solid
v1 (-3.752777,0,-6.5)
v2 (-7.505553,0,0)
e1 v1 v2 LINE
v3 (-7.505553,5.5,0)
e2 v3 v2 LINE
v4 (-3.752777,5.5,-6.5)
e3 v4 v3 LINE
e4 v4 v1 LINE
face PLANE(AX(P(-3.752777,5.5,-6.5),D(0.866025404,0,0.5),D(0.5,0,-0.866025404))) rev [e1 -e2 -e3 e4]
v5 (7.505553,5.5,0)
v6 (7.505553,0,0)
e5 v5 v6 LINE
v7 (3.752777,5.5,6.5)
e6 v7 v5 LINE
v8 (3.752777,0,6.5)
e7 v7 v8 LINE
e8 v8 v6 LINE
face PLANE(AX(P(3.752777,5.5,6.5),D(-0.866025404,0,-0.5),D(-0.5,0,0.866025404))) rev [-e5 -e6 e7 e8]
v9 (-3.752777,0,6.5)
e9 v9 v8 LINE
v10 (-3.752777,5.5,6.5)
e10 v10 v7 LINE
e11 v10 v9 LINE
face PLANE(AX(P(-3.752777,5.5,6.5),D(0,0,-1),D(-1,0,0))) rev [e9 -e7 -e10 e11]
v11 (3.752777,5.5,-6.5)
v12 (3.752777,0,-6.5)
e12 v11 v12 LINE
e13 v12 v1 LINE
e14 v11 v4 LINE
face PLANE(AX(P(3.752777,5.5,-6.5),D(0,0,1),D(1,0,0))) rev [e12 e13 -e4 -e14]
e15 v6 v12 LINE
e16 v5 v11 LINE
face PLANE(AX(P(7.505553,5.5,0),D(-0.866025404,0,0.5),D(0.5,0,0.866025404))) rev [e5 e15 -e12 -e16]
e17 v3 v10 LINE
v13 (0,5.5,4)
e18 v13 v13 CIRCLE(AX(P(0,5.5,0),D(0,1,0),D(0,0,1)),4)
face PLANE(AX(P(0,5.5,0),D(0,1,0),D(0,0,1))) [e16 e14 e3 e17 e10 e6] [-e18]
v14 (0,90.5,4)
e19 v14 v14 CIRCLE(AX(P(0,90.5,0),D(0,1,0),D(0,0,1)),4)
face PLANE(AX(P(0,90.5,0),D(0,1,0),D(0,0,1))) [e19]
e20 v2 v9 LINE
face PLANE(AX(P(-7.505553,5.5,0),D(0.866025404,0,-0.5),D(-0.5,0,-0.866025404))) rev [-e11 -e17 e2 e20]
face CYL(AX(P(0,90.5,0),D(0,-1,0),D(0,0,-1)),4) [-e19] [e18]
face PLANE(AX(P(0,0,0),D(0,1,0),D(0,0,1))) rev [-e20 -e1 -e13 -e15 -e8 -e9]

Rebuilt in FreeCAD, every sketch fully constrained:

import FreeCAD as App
import Part
import Sketcher
from FreeCAD import Vector
Q = App.Units.Quantity


def add_polygon(sketch, points):
    """Adds a closed chain of lines whose ends are joined by coincident constraints."""
    first, n = sketch.GeometryCount, len(points)
    for a, b in zip(points, points[1:] + points[:1]):
        sketch.addGeometry(Part.LineSegment(App.Vector(*a, 0), App.Vector(*b, 0)), False)
    for i in range(n):
        sketch.addConstraint(Sketcher.Constraint("Coincident", first + i, 2, first + (i + 1) % n, 1))

doc = App.newDocument("Part")
body = doc.addObject("PartDesign::Body", "Body")

sketch1 = doc.addObject("Sketcher::SketchObject", "Sketch")
body.addObject(sketch1)
sketch1.AttachmentSupport = (doc.XZ_Plane, [""])
sketch1.MapMode = "FlatFace"
add_polygon(sketch1, [(-7.505553, 0), (-3.752777, 6.5), (3.752777, 6.5), (7.505553, 0), (3.752777, -6.5), (-3.752777, -6.5)])
sketch1.addConstraint(Sketcher.Constraint("Horizontal", 1))
sketch1.addConstraint(Sketcher.Constraint("Horizontal", 4))
sketch1.addConstraint(Sketcher.Constraint("Symmetric", 0, 2, 3, 2, -1, 1))
sketch1.addConstraint(Sketcher.Constraint("Symmetric", 2, 2, 5, 2, -1, 1))
sketch1.addConstraint(Sketcher.Constraint("PointOnObject", 2, 2, -1))
sketch1.addConstraint(Sketcher.Constraint("Parallel", 2, 5))
sketch1.addConstraint(Sketcher.Constraint("Vertical", 1, 2, 3, 2))
sketch1.addConstraint(Sketcher.Constraint("Angle", 0, Q("60 deg")))
sketch1.addConstraint(Sketcher.Constraint("DistanceY", 3, 2, 1, 2, 13.0))
sketch1.addConstraint(Sketcher.Constraint("DistanceX", 1, 1, 1, 2, 7.505554))
pad1 = doc.addObject("PartDesign::Pad", "Pad")
body.addObject(pad1)
pad1.Profile = sketch1
pad1.Length = 5.5
pad1.Reversed = True

sketch2 = doc.addObject("Sketcher::SketchObject", "Sketch001")
body.addObject(sketch2)
sketch2.AttachmentSupport = (doc.XZ_Plane, [""])
sketch2.MapMode = "FlatFace"
sketch2.AttachmentOffset = App.Placement(Vector(0, 0, -5.5), App.Rotation())
sketch2.addGeometry(Part.Circle(Vector(0, 0, 0), Vector(0, 0, 1), 4), False)
sketch2.addConstraint(Sketcher.Constraint("Coincident", 0, 3, -1, 1))
sketch2.addConstraint(Sketcher.Constraint("Diameter", 0, 8.0))
pad2 = doc.addObject("PartDesign::Pad", "Pad001")
body.addObject(pad2)
pad2.Profile = sketch2
pad2.Length = 85
pad2.Reversed = True

doc.recompute()
